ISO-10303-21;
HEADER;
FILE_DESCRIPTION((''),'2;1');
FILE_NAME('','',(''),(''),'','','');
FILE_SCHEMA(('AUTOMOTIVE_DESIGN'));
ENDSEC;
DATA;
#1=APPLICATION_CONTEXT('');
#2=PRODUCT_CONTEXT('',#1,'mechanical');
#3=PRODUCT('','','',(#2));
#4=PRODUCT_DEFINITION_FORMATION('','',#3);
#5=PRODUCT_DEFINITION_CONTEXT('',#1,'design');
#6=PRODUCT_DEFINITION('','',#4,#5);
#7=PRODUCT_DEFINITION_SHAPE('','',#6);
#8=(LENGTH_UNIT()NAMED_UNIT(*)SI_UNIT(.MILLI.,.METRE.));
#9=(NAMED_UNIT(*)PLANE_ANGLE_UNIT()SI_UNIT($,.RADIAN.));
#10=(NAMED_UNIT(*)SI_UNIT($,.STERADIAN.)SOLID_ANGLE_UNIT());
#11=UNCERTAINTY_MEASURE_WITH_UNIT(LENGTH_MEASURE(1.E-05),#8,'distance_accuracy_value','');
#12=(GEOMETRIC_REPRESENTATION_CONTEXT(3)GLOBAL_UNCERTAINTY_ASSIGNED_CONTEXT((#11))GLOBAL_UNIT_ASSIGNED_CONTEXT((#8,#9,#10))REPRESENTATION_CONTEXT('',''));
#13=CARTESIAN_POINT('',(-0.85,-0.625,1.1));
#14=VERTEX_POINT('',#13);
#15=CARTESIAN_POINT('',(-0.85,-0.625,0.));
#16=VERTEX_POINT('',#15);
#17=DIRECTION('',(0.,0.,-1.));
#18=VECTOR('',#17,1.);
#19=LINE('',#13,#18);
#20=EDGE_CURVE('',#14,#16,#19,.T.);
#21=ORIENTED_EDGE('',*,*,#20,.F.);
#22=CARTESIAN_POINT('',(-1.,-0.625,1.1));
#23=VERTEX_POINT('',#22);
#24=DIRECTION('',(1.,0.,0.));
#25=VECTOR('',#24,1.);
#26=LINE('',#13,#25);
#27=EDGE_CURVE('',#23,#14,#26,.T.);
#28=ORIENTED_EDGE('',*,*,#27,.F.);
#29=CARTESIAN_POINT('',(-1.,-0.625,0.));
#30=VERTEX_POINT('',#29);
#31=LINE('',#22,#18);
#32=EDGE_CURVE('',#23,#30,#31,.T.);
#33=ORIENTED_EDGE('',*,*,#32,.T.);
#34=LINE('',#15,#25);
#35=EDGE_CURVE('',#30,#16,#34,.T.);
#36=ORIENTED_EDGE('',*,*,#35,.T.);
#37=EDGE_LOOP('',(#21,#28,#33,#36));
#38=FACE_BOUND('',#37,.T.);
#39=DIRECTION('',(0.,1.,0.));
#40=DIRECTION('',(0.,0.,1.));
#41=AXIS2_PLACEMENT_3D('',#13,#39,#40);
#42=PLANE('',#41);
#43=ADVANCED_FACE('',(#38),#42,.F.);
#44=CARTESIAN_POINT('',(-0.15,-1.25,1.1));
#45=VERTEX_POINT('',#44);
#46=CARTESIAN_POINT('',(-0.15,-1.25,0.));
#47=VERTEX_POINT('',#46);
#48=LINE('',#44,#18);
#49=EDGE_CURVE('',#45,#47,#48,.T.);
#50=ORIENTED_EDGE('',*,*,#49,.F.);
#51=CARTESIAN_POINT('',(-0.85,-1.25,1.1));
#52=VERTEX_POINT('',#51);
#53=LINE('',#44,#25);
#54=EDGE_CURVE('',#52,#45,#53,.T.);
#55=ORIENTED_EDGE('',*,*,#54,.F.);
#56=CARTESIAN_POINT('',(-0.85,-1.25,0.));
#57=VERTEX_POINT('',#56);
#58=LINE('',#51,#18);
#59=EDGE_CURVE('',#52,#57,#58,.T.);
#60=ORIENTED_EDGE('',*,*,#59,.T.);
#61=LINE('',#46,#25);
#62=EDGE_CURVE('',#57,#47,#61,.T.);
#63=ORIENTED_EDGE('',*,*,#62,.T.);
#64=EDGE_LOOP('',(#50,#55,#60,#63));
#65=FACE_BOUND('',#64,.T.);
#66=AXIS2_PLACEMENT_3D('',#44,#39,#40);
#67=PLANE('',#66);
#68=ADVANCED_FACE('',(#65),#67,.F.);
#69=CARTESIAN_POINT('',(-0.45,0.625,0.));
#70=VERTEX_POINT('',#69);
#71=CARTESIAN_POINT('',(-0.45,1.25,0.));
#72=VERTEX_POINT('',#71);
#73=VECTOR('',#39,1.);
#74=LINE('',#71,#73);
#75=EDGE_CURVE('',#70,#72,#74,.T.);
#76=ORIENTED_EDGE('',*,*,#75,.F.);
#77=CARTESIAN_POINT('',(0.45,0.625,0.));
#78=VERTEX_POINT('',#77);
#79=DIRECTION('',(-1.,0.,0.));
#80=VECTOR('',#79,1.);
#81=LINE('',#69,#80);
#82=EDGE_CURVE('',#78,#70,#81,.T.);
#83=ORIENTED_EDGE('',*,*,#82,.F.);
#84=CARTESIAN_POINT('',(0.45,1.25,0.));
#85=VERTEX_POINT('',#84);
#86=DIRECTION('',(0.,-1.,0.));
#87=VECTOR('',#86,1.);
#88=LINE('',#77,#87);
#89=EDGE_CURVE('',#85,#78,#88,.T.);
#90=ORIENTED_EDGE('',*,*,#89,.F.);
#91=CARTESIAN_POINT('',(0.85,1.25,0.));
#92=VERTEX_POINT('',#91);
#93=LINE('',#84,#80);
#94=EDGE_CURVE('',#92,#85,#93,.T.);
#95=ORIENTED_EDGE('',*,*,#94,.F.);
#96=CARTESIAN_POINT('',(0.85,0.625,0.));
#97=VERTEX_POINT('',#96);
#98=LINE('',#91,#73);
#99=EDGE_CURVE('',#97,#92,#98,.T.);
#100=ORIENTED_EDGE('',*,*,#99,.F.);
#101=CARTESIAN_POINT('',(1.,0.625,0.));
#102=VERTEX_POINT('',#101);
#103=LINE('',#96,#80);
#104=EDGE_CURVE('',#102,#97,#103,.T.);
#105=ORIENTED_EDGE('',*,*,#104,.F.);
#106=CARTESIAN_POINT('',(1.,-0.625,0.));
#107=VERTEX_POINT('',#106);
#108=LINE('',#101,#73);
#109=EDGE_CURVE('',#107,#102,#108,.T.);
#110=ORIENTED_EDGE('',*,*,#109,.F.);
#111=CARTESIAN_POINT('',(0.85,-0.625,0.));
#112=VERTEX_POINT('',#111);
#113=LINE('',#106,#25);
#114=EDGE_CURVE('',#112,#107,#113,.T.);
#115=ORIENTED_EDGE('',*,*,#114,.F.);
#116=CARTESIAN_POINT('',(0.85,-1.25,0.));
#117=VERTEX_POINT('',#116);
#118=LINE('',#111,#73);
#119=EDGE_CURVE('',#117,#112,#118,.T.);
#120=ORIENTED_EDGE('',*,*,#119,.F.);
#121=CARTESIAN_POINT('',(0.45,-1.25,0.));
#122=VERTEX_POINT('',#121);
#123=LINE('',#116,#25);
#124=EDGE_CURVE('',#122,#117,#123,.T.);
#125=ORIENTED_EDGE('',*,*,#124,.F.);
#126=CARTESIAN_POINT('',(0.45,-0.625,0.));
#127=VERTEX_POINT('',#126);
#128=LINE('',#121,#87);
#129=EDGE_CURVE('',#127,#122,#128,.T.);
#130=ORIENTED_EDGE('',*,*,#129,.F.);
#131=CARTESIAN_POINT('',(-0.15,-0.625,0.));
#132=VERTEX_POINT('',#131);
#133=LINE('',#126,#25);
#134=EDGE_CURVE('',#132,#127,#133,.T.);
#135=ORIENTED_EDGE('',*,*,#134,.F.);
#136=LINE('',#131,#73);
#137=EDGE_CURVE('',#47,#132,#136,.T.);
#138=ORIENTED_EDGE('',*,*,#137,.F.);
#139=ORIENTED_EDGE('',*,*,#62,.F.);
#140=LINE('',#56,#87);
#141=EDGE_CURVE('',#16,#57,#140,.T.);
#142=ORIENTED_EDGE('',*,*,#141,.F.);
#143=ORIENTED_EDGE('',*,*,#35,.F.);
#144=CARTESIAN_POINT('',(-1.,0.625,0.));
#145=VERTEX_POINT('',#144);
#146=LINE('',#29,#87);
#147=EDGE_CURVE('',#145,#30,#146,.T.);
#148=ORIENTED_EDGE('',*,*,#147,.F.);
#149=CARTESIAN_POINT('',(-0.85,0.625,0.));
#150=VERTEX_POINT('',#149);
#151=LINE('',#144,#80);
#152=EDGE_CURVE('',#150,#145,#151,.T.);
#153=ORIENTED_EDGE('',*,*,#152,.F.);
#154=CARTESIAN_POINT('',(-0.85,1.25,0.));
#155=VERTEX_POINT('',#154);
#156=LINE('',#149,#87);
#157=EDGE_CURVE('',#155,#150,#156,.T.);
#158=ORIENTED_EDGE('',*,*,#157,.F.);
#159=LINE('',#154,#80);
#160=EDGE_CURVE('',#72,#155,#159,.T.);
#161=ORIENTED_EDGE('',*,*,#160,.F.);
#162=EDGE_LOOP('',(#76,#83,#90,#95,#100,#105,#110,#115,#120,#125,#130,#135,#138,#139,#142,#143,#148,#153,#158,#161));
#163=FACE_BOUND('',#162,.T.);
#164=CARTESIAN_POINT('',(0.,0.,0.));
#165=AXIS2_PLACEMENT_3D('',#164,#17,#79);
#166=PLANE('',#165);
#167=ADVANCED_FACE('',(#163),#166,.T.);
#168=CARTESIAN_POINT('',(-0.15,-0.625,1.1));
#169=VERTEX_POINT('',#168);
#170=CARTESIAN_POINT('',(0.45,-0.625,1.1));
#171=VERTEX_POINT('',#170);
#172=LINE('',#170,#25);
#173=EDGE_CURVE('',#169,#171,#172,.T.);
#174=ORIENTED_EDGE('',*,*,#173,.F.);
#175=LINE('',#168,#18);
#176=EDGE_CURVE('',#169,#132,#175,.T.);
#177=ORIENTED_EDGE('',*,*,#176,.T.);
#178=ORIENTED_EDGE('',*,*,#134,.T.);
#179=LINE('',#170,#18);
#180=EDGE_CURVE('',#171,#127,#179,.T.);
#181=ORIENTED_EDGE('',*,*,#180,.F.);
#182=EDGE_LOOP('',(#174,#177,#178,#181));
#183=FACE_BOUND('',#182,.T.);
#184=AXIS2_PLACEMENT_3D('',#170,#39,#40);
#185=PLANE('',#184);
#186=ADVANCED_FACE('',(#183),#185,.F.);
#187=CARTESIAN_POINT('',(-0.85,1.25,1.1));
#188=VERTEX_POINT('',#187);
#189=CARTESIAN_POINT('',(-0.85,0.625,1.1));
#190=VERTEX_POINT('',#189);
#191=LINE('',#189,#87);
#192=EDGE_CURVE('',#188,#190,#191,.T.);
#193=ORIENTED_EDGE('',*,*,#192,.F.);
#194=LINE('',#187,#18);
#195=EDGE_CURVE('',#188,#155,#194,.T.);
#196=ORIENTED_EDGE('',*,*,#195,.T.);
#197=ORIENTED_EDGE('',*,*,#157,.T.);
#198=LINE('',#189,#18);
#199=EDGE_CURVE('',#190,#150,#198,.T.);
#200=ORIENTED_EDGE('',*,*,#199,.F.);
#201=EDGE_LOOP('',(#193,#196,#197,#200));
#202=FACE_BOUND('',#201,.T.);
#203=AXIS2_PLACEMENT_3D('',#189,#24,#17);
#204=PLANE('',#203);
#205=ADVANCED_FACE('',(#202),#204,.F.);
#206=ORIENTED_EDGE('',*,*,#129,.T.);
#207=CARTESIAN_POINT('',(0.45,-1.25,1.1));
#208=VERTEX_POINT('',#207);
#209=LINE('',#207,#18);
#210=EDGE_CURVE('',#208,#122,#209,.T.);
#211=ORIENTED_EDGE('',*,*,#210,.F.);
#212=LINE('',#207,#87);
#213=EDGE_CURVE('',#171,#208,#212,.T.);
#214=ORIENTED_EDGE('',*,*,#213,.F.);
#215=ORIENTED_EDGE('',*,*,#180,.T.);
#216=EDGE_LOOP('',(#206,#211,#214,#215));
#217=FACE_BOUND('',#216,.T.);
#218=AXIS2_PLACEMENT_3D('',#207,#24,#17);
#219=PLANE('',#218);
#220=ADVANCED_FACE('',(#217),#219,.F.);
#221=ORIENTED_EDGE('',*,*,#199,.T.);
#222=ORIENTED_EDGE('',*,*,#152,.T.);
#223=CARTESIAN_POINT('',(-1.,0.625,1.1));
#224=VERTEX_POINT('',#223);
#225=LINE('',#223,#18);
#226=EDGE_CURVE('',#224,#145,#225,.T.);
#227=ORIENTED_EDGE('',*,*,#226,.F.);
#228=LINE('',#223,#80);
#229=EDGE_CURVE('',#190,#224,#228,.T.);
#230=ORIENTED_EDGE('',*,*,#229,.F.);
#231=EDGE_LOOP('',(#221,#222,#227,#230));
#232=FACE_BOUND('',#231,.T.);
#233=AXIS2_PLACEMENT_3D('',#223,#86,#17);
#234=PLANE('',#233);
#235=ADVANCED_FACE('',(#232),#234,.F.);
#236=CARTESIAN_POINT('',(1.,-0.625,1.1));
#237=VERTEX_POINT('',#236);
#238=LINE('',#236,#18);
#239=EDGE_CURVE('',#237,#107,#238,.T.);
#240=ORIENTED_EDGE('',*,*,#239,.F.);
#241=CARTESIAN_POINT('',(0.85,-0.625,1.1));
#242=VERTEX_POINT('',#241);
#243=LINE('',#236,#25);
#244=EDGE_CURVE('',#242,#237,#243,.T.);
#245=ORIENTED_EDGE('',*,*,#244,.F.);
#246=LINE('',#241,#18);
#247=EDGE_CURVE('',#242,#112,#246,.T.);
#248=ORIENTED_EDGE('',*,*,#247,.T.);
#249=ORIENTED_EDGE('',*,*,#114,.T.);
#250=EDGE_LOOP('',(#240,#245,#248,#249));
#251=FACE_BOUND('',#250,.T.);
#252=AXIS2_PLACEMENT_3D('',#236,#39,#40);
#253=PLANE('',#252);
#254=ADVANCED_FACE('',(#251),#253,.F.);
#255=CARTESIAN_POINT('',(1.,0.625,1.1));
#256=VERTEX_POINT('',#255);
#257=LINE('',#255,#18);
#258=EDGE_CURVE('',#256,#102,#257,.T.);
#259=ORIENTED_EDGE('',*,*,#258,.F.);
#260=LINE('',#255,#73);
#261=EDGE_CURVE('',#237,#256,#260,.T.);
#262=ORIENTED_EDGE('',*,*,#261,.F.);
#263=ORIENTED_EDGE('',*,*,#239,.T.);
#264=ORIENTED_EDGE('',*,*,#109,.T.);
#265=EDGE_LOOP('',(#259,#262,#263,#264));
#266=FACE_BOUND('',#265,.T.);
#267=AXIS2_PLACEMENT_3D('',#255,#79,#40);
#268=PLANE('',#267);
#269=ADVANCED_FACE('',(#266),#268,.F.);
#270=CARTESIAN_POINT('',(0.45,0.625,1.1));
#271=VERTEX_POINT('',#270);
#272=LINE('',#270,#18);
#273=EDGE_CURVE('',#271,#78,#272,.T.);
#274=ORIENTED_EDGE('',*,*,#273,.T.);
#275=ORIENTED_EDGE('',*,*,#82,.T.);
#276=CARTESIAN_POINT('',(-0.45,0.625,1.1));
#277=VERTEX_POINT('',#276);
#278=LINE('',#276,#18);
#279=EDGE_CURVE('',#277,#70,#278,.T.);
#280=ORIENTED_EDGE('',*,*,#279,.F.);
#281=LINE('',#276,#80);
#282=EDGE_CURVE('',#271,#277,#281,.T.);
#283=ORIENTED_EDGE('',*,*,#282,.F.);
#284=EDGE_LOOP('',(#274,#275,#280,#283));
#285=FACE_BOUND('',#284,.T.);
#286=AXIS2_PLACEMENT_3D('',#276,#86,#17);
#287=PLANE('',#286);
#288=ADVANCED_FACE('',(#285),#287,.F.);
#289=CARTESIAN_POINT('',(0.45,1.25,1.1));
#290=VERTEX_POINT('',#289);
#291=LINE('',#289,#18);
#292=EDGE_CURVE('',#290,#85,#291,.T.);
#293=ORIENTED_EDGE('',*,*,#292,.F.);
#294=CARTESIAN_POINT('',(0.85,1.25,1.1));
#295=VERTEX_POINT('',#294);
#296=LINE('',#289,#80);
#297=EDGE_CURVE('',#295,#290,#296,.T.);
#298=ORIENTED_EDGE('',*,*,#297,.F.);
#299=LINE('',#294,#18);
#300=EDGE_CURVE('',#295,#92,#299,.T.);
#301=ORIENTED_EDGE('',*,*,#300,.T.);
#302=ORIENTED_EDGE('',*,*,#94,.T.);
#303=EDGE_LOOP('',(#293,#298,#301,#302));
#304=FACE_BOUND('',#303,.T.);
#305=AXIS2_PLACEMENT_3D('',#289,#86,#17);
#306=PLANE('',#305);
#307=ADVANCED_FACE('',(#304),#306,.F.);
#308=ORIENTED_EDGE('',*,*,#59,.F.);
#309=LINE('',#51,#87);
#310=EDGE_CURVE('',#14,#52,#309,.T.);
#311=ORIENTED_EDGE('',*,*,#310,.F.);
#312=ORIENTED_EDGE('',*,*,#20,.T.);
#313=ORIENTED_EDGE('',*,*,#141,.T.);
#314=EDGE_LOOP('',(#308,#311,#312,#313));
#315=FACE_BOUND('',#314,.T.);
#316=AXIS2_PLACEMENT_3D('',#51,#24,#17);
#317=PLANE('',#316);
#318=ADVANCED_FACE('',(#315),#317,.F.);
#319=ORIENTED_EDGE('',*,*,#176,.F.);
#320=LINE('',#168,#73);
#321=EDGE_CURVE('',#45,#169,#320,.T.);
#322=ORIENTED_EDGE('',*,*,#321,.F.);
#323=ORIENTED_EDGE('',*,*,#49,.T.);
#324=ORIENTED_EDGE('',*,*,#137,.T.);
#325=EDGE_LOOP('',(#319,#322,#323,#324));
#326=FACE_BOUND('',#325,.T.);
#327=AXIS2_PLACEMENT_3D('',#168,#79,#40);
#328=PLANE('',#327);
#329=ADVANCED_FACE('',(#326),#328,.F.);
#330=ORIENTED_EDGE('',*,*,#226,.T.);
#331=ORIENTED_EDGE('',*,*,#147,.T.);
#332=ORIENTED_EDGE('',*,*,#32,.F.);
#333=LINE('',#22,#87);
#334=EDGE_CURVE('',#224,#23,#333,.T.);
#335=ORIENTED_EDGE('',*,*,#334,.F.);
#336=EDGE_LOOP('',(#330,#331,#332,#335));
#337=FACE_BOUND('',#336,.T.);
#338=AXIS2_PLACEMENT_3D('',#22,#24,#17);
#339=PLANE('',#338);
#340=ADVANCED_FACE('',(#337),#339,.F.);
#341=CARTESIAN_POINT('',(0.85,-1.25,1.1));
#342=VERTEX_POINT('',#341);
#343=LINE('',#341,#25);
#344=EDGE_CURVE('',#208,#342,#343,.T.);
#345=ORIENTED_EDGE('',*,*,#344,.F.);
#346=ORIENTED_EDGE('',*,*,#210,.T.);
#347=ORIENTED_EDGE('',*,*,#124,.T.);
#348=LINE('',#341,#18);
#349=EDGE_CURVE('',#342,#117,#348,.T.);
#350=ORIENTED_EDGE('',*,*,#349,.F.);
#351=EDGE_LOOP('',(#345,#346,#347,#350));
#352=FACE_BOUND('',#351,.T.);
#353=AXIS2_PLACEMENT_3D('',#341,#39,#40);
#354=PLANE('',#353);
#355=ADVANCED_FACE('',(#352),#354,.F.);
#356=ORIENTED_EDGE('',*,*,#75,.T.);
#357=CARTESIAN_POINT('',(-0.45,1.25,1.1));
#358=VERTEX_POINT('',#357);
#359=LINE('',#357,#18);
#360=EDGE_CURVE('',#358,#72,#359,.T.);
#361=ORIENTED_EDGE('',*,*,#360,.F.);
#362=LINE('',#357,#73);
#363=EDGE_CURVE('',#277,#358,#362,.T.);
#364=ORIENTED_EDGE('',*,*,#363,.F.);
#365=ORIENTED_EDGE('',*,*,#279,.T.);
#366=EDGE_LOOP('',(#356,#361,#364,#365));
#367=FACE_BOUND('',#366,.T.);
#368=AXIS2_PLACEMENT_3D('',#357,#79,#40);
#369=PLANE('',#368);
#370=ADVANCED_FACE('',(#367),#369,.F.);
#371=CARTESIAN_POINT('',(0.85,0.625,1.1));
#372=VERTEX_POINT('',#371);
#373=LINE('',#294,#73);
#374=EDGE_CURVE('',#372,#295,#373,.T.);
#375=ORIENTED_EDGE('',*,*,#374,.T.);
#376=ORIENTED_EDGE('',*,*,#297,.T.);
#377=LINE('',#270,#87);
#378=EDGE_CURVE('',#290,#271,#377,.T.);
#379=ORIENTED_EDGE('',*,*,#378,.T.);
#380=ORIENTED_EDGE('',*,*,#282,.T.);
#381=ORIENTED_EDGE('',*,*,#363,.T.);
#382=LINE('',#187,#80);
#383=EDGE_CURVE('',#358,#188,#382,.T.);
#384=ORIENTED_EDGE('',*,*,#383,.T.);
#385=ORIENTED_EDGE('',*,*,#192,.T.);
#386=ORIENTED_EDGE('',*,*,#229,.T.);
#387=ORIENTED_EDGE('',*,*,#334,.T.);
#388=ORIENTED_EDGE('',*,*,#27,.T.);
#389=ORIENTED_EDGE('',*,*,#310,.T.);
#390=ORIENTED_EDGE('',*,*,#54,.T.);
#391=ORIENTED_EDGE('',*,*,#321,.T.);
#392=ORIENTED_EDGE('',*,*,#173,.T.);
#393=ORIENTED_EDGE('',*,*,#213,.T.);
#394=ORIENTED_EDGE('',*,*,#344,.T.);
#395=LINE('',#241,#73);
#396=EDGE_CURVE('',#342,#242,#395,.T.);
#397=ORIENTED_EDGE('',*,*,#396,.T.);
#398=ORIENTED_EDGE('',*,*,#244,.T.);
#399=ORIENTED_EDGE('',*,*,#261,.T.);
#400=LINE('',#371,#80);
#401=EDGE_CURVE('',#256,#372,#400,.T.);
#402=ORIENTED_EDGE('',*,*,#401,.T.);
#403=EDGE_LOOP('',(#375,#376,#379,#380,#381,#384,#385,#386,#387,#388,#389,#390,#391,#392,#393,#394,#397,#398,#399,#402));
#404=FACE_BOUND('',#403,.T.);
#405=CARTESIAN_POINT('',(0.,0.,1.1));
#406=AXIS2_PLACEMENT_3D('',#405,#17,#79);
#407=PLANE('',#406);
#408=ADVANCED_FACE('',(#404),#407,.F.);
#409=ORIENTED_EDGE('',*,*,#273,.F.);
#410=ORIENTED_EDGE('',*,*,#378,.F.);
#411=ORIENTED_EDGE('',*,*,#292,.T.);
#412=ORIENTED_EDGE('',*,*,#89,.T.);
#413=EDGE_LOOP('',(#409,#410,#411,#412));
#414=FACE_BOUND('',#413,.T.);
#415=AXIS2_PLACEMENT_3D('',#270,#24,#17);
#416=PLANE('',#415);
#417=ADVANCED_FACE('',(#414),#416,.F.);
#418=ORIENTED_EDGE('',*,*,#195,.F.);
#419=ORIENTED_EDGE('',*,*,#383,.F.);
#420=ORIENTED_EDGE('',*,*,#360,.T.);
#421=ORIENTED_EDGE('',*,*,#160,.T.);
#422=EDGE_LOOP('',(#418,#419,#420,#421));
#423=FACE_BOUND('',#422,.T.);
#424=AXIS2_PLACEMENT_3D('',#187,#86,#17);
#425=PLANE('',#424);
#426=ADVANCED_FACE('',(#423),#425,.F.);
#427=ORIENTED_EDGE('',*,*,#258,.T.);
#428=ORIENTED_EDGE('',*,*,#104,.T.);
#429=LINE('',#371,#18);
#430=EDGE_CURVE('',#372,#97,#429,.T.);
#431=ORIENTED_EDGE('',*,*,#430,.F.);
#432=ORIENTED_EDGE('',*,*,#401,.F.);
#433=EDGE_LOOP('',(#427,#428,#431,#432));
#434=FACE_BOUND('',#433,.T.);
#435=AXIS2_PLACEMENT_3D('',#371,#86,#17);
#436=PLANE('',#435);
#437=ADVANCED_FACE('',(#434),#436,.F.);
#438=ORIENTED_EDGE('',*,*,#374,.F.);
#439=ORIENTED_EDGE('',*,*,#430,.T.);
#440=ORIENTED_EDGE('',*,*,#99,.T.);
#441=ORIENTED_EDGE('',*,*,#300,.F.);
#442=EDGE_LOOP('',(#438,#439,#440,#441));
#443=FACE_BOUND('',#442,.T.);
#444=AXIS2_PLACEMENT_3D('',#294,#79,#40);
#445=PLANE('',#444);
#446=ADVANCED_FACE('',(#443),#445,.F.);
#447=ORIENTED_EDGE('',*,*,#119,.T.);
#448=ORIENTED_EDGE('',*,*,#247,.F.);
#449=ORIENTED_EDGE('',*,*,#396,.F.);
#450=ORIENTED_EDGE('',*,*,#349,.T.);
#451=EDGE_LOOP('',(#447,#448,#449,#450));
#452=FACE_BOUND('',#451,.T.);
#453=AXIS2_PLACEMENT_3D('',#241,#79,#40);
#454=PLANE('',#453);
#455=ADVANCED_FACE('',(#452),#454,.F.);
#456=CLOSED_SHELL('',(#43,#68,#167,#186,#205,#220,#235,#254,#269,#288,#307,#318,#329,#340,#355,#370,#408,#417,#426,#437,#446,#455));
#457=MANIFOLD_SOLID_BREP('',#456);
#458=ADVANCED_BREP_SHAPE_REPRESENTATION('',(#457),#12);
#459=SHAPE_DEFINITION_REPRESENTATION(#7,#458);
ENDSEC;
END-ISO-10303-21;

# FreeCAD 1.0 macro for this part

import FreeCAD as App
import Part
import Sketcher
Q = App.Units.Quantity


def add_polygon(sketch, points):
    """Adds a closed chain of lines whose ends are joined by coincident constraints."""
    first, n = sketch.GeometryCount, len(points)
    for a, b in zip(points, points[1:] + points[:1]):
        sketch.addGeometry(Part.LineSegment(App.Vector(*a, 0), App.Vector(*b, 0)), False)
    for i in range(n):
        sketch.addConstraint(Sketcher.Constraint("Coincident", first + i, 2, first + (i + 1) % n, 1))

doc = App.newDocument("Part")
body = doc.addObject("PartDesign::Body", "Body")

sketch1 = body.newObject("Sketcher::SketchObject", "Sketch")
sketch1.AttachmentSupport = (doc.getObject("XY_Plane"), [""])
sketch1.MapMode = "FlatFace"
add_polygon(sketch1, [(-0.85, 0.62), (-1, 0.62), (-1, -0.62), (-0.85, -0.62), (-0.85, -1.25), (-0.15, -1.25), (-0.15, -0.62), (0.45, -0.62), (0.45, -1.25), (0.85, -1.25), (0.85, -0.62), (1, -0.62), (1, 0.62), (0.85, 0.62), (0.85, 1.25), (0.45, 1.25), (0.45, 0.62), (-0.45, 0.62), (-0.45, 1.25), (-0.85, 1.25)])
sketch1.addConstraint([
    Sketcher.Constraint("Horizontal", 0),
    Sketcher.Constraint("Vertical", 1),
    Sketcher.Constraint("Horizontal", 2),
    Sketcher.Constraint("Vertical", 3),
    Sketcher.Constraint("Horizontal", 4),
    Sketcher.Constraint("Vertical", 5),
    Sketcher.Constraint("Horizontal", 6),
    Sketcher.Constraint("Vertical", 7),
    Sketcher.Constraint("Horizontal", 8),
    Sketcher.Constraint("Vertical", 9),
    Sketcher.Constraint("Horizontal", 10),
    Sketcher.Constraint("Vertical", 11),
    Sketcher.Constraint("Horizontal", 12),
    Sketcher.Constraint("Vertical", 13),
    Sketcher.Constraint("Horizontal", 14),
    Sketcher.Constraint("Vertical", 15),
    Sketcher.Constraint("Horizontal", 16),
    Sketcher.Constraint("Vertical", 17),
    Sketcher.Constraint("Horizontal", 18),
    Sketcher.Constraint("Vertical", 19),
    Sketcher.Constraint("Symmetric", 0, 2, 10, 2, -1, 1),
    Sketcher.Constraint("Symmetric", 2, 2, 12, 2, -1, 1),
    Sketcher.Constraint("Symmetric", 6, 2, 16, 2, -1, 1),
    Sketcher.Constraint("Symmetric", 8, 2, 18, 2, -1, 1),
    Sketcher.Constraint("Symmetric", 3, 2, 8, 2, -2),
    Sketcher.Constraint("Symmetric", 14, 2, 17, 2, -2),
    Sketcher.Constraint("Horizontal", 2, 2, 5, 2),
    Sketcher.Constraint("Horizontal", 6, 2, 9, 2),
    Sketcher.Constraint("DistanceX", 4, 1, 4, 2, Q("0.7 mm")),
    Sketcher.Constraint("DistanceX", 6, 1, 6, 2, Q("0.6 mm")),
    Sketcher.Constraint("DistanceX", 8, 1, 8, 2, Q("0.4 mm")),
    Sketcher.Constraint("DistanceX", 0, 2, -1, 1, Q("1 mm")),
    Sketcher.Constraint("DistanceY", 1, 2, 1, 1, Q("1.25 mm")),
    Sketcher.Constraint("DistanceY", 3, 2, 3, 1, Q("0.625 mm")),
])
pad1 = body.newObject("PartDesign::Pad", "Pad")
pad1.Profile = sketch1
pad1.Length = 1.1

doc.recompute()
